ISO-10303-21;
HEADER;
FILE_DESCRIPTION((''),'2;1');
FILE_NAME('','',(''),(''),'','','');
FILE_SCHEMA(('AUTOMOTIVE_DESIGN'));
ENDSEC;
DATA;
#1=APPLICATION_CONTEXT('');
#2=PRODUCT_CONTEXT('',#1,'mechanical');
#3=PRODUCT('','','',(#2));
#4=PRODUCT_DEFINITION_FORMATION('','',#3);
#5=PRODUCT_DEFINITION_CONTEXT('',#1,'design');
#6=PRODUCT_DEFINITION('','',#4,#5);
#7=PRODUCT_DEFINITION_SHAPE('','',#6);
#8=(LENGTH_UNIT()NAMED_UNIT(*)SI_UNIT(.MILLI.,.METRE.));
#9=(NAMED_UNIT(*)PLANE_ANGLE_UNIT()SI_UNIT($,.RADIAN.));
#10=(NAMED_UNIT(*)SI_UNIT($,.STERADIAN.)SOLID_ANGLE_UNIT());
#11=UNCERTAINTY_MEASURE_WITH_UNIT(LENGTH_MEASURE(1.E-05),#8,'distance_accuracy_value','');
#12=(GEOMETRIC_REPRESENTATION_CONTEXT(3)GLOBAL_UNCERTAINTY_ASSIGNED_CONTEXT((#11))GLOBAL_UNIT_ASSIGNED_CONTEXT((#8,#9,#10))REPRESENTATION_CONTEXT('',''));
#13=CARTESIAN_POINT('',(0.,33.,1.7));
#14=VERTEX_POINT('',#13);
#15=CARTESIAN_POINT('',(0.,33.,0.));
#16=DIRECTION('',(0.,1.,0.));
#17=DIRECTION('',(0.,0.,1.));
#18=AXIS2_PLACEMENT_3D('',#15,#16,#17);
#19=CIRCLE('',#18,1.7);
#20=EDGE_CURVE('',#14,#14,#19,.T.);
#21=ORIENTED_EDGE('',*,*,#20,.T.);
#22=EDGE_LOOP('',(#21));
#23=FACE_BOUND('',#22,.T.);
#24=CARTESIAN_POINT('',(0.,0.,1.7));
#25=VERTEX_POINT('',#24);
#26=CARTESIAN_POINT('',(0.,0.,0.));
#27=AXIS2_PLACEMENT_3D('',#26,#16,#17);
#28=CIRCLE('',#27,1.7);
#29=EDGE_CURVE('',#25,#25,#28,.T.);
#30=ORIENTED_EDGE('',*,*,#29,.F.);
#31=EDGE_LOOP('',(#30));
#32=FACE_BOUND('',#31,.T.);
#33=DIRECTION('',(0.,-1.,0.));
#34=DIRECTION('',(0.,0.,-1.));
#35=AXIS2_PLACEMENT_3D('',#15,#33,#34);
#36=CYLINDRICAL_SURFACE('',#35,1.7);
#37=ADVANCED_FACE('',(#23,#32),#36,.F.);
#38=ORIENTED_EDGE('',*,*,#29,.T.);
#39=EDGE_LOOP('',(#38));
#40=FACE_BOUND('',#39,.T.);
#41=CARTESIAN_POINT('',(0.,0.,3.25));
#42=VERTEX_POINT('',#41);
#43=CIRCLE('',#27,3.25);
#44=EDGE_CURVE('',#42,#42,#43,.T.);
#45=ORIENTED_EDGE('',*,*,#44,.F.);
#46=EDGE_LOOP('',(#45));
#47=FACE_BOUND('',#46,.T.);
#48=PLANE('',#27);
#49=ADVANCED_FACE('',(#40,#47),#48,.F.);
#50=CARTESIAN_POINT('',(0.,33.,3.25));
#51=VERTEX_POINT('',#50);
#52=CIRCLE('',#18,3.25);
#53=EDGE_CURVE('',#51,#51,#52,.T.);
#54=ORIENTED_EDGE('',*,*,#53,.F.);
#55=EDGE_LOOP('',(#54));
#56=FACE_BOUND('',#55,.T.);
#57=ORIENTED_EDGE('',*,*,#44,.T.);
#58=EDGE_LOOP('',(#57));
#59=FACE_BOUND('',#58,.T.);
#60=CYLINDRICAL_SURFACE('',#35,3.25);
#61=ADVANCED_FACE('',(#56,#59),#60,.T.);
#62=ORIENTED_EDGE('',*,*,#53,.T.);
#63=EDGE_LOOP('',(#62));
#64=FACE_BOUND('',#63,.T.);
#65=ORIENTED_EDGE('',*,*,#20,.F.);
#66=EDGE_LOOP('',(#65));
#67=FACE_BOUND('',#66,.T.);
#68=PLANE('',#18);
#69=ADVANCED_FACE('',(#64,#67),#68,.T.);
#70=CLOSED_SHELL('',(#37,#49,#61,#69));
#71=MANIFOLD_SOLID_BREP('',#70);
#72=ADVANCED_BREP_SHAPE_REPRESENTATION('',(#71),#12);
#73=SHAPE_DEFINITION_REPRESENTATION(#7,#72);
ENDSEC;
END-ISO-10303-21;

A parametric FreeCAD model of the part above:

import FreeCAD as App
import Part
import Sketcher
from FreeCAD import Vector

doc = App.newDocument("Part")
body = doc.addObject("PartDesign::Body", "Body")

# Sketch on XZ plane
sketch1 = body.newObject("Sketcher::SketchObject", "Sketch")
sketch1.AttachmentSupport = (doc.getObject("XZ_Plane"), [""])
sketch1.MapMode = "FlatFace"
sketch1.addGeometry([
    Part.Circle(Vector(0, 0, 0), Vector(0, 0, 1), 3.2),
    Part.Circle(Vector(0, 0, 0), Vector(0, 0, 1), 1.7),
], False)
sketch1.addConstraint([
    Sketcher.Constraint("Coincident", 0, 3, -1, 1),
    Sketcher.Constraint("Coincident", 1, 3, -1, 1),
    Sketcher.Constraint("Diameter", 0, 6.5),
    Sketcher.Constraint("Diameter", 1, 3.4),
])
pad1 = body.newObject("PartDesign::Pad", "Pad")
pad1.Profile = sketch1
pad1.Length = 33
pad1.Reversed = True

doc.recompute()
